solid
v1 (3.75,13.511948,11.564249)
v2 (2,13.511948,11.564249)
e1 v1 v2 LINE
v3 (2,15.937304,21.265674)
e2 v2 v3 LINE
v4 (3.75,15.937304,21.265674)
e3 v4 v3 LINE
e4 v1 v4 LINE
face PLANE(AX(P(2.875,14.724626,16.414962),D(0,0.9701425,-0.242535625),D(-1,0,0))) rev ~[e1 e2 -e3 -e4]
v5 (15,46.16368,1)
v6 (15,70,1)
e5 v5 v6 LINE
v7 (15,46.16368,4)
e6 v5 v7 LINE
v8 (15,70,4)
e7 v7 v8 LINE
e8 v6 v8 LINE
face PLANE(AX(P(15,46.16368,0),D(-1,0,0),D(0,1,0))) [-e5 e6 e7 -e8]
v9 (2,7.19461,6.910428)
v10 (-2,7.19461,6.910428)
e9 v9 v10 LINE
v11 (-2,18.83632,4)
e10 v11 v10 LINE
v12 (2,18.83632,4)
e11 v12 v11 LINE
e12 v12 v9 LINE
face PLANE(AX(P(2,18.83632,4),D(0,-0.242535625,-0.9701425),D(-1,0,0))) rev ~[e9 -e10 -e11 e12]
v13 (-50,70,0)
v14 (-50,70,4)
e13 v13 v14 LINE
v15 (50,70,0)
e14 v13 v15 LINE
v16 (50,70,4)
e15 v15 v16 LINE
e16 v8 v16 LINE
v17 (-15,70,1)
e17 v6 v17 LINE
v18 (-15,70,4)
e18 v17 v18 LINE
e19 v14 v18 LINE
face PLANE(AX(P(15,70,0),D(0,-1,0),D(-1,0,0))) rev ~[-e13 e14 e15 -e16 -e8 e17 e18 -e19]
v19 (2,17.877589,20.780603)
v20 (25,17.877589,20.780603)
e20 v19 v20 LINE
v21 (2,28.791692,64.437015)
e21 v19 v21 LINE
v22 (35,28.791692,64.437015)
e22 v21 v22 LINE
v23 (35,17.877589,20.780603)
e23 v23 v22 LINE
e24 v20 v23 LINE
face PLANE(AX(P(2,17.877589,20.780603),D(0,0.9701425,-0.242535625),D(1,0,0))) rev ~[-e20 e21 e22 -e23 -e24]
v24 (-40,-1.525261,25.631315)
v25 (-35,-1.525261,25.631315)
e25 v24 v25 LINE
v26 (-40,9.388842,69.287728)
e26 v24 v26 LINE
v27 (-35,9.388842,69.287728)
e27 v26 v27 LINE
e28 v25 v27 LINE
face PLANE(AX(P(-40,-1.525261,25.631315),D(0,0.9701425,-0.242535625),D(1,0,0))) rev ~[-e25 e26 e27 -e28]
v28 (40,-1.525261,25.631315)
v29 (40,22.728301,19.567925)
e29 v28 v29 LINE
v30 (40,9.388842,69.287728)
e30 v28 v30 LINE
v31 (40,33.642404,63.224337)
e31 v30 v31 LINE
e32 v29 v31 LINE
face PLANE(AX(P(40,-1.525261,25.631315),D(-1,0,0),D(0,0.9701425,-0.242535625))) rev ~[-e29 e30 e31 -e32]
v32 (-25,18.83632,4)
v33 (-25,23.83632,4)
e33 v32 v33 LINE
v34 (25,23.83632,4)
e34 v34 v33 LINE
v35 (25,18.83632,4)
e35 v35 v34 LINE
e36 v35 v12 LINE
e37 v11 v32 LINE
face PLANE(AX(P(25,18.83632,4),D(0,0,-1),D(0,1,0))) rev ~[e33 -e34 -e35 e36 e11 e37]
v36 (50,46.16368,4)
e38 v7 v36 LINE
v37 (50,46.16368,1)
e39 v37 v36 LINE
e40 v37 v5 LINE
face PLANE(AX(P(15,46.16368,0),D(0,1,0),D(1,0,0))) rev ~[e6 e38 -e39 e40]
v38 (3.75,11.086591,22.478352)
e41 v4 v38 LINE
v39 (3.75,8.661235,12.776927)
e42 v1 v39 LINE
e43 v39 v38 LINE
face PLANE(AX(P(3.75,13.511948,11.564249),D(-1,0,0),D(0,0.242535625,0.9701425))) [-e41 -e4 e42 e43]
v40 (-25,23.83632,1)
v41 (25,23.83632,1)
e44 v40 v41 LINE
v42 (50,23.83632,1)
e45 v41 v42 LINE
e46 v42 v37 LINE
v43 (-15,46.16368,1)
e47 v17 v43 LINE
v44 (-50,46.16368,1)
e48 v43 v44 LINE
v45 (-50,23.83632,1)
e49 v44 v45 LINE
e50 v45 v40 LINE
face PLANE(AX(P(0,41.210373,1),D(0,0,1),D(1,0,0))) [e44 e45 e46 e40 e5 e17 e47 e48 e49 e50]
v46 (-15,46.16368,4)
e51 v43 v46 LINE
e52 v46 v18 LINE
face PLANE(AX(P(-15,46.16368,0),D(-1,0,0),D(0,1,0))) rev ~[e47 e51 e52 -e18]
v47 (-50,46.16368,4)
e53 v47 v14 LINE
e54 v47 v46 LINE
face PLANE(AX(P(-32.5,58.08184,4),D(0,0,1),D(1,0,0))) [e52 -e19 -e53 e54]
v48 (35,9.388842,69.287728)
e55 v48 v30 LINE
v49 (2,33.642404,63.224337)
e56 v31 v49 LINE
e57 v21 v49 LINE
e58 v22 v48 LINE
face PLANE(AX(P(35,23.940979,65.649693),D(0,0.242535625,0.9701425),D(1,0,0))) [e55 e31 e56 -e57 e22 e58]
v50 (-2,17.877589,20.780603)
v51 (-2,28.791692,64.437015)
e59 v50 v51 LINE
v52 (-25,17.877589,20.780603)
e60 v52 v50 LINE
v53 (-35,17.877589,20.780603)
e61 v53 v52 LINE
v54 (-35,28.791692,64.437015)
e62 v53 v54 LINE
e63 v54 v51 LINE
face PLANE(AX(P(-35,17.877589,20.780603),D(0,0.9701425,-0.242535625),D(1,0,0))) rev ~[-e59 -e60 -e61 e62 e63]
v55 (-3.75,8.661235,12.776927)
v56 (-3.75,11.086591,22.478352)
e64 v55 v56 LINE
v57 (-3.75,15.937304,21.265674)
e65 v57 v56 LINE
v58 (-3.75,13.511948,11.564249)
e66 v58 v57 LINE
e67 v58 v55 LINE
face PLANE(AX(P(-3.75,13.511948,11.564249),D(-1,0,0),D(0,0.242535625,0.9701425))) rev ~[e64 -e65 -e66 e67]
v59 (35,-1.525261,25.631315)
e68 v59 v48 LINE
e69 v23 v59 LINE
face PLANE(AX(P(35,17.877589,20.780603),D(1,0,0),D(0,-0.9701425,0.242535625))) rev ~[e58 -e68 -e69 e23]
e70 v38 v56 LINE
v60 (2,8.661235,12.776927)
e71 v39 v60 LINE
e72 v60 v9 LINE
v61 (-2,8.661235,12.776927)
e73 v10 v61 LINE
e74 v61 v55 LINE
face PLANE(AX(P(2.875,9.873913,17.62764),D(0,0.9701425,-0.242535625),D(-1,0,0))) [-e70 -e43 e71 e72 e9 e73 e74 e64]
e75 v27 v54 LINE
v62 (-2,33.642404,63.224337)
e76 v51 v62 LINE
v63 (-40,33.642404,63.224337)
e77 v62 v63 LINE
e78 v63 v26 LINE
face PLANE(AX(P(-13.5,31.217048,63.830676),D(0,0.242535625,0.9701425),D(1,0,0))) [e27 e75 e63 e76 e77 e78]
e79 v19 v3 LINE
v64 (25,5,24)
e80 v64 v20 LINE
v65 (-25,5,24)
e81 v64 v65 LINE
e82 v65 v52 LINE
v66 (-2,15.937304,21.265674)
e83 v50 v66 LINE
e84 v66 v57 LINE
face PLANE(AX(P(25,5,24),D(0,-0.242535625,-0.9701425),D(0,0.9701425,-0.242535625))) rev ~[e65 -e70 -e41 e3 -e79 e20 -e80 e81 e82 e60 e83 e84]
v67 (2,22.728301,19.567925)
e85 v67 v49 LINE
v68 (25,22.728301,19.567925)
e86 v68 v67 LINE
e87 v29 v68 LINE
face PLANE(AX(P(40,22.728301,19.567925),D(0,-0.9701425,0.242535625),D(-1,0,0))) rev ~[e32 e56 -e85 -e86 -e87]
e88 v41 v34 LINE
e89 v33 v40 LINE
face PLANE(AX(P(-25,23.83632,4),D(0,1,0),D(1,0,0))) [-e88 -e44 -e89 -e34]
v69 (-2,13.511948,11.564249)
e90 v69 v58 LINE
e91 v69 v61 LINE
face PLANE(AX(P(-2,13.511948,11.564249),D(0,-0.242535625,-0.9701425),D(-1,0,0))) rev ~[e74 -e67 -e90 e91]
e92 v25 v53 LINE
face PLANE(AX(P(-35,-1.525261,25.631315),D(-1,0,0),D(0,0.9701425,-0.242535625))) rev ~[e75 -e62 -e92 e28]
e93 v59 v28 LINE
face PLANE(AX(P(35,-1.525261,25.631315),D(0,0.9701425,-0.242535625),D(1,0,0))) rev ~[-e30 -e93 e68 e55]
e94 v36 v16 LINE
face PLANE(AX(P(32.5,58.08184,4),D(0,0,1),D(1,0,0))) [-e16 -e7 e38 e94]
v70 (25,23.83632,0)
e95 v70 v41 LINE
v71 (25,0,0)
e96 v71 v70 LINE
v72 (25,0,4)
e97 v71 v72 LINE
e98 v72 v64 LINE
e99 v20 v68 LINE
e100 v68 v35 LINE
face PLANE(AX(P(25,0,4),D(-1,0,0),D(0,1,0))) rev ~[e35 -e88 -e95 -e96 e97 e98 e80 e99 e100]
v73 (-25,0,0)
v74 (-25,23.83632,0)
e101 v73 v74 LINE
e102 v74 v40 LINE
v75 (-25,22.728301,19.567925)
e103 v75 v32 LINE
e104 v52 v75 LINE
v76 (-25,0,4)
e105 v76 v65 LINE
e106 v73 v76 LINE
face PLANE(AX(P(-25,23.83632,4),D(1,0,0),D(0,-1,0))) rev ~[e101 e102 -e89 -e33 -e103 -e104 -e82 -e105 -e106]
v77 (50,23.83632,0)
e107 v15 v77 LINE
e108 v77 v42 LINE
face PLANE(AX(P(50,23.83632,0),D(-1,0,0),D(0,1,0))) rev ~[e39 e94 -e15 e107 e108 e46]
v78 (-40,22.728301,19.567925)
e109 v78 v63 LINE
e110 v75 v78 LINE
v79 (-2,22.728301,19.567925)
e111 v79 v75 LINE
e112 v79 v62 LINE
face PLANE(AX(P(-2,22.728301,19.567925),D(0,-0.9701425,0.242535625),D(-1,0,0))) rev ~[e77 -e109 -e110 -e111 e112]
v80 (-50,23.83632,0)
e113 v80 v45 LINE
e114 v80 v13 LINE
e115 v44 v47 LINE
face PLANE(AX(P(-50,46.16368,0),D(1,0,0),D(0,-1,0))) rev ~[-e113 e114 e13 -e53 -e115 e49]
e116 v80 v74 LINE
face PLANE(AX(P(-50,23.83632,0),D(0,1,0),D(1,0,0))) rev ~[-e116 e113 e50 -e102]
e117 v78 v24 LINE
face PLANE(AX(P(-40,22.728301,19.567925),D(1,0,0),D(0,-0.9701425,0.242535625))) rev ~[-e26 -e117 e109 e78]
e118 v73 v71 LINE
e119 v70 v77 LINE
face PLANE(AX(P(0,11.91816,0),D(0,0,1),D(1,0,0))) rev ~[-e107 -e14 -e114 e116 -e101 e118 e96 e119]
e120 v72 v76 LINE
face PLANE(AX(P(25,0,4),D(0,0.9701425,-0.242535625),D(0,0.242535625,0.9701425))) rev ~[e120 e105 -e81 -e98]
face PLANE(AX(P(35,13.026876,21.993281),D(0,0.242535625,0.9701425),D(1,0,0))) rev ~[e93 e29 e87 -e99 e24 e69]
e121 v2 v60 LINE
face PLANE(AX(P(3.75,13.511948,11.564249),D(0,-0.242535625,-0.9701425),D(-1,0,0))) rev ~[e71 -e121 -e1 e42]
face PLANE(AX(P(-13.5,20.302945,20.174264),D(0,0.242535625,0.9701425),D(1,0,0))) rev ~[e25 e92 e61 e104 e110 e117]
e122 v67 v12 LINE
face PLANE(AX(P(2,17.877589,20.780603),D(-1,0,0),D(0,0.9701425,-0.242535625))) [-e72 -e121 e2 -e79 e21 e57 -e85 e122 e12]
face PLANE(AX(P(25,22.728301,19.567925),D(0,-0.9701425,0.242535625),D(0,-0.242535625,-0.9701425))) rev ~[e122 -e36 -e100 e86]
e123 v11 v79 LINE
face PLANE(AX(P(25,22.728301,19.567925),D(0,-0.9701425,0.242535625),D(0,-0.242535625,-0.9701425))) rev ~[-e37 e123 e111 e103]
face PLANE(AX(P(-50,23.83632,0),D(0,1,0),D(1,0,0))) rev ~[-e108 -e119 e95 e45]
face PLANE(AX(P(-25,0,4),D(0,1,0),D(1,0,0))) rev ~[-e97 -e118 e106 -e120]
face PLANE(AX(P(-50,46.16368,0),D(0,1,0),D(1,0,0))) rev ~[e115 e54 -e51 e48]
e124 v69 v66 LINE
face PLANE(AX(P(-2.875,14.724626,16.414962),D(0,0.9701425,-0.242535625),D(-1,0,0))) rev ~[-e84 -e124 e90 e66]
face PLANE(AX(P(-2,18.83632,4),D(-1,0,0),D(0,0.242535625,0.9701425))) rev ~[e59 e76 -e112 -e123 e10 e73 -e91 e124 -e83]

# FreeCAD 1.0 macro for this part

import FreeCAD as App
import Part
import Sketcher

V = App.Vector


def add_polygon(sketch, points):
    """Adds a closed chain of lines whose ends are joined by coincident constraints."""
    first, n = sketch.GeometryCount, len(points)
    for a, b in zip(points, points[1:] + points[:1]):
        sketch.addGeometry(Part.LineSegment(App.Vector(*a, 0), App.Vector(*b, 0)), False)
    for i in range(n):
        sketch.addConstraint(Sketcher.Constraint("Coincident", first + i, 2, first + (i + 1) % n, 1))

doc = App.newDocument("Part")
params = doc.addObject("Spreadsheet::Sheet", "Params")
for row, (alias, value) in enumerate([
    ("sketch1_width", "100 mm"),
    ("sketch1_width2", "35 mm"),
    ("pad1_length", "1 mm"),
    ("sketch2_width", "50 mm"),
    ("sketch2_width2", "35 mm"),
    ("pad2_length", "4 mm"),
    ("sketch3_width", "50 mm"),
    ("pad3_length", "20 mm"),
    ("sketch4_width", "5 mm"),
    ("sketch4_height", "20 mm"),
    ("pocket1_length", "50 mm"),
    ("sketch5_width", "4 mm"),
    ("pocket2_length", "12 mm"),
    ("sketch6_height", "10 mm"),
    ("sketch6_width", "1.75 mm"),
    ("pocket3_length", "5 mm"),
    ("sketch7_width", "38 mm"),
    ("sketch7_width2", "33 mm"),
    ("sketch7_height", "20 mm"),
    ("pad4_length", "45 mm"),
], start=1):
    params.set(f"A{row}", alias)
    params.set(f"B{row}", "=" + value)
    params.setAlias(f"B{row}", alias)

body = doc.addObject("PartDesign::Body", "Body")

sketch1 = body.newObject("Sketcher::SketchObject", "Sketch")
sketch1.AttachmentSupport = (doc.getObject("XY_Plane"), [""])
sketch1.MapMode = "FlatFace"
add_polygon(sketch1, [(-50, 46.16368), (-50, 23.83632), (50, 23.83632), (50, 46.16368), (15, 46.16368), (15, 70), (-15, 70), (-15, 46.16368)])
sketch1.addConstraint([
    Sketcher.Constraint("Vertical", 0),
    Sketcher.Constraint("Horizontal", 1),
    Sketcher.Constraint("Vertical", 2),
    Sketcher.Constraint("Horizontal", 3),
    Sketcher.Constraint("Vertical", 4),
    Sketcher.Constraint("Horizontal", 5),
    Sketcher.Constraint("Vertical", 6),
    Sketcher.Constraint("Horizontal", 7),
    Sketcher.Constraint("Symmetric", 3, 2, 6, 2, -2),
    Sketcher.Constraint("Equal", 3, 7),
    Sketcher.Constraint("DistanceX", 1, 1, 1, 2, 100.0),
    Sketcher.Constraint("DistanceX", 3, 2, 3, 1, 35.0),
    Sketcher.Constraint("DistanceY", -1, 1, 4, 2, 70.0),
    Sketcher.Constraint("DistanceY", 0, 2, 0, 1, 22.32736),
    Sketcher.Constraint("DistanceY", 4, 1, 4, 2, 23.83632),
])
sketch1.setExpression("Constraints[18]", "Params.sketch1_width")
sketch1.setExpression("Constraints[19]", "Params.sketch1_width2")
pad1 = body.newObject("PartDesign::Pad", "Pad")
pad1.Profile = sketch1
pad1.setExpression("Length", "Params.pad1_length")

sketch2 = body.newObject("Sketcher::SketchObject", "Sketch001")
sketch2.AttachmentSupport = (doc.getObject("XY_Plane"), [""])
sketch2.MapMode = "FlatFace"
add_polygon(sketch2, [(-25, 23.83632), (-25, 0), (25, 0), (25, 23.83632)])
add_polygon(sketch2, [(15, 70), (15, 46.16368), (50, 46.16368), (50, 70)])
add_polygon(sketch2, [(-50, 70), (-50, 46.16368), (-15, 46.16368), (-15, 70)])
sketch2.addConstraint([
    Sketcher.Constraint("Vertical", 0),
    Sketcher.Constraint("Horizontal", 1),
    Sketcher.Constraint("Vertical", 2),
    Sketcher.Constraint("Horizontal", 3),
    Sketcher.Constraint("Vertical", 4),
    Sketcher.Constraint("Horizontal", 5),
    Sketcher.Constraint("Vertical", 6),
    Sketcher.Constraint("Horizontal", 7),
    Sketcher.Constraint("Vertical", 8),
    Sketcher.Constraint("Horizontal", 9),
    Sketcher.Constraint("Vertical", 10),
    Sketcher.Constraint("Horizontal", 11),
    Sketcher.Constraint("Symmetric", 0, 2, 1, 2, -1, 1),
    Sketcher.Constraint("Symmetric", 5, 2, 8, 2, -2),
    Sketcher.Constraint("Symmetric", 7, 2, 10, 2, -2),
    Sketcher.Constraint("Equal", 2, 4),
    Sketcher.Constraint("DistanceX", 1, 1, 1, 2, 50.0),
    Sketcher.Constraint("DistanceX", 5, 1, 5, 2, 35.0),
    Sketcher.Constraint("DistanceX", -1, 1, 4, 2, 15.0),
    Sketcher.Constraint("DistanceY", -1, 1, 6, 2, 70.0),
    Sketcher.Constraint("DistanceY", 0, 2, 0, 1, 23.83632),
])
sketch2.setExpression("Constraints[28]", "Params.sketch2_width")
sketch2.setExpression("Constraints[29]", "Params.sketch2_width2")
pad2 = body.newObject("PartDesign::Pad", "Pad001")
pad2.Profile = sketch2
pad2.setExpression("Length", "Params.pad2_length")

sketch3 = body.newObject("Sketcher::SketchObject", "Sketch002")
sketch3.AttachmentSupport = (doc.getObject("XY_Plane"), [""])
sketch3.MapMode = "FlatFace"
sketch3.AttachmentOffset = App.Placement(V(0, 0, 4), App.Rotation())
add_polygon(sketch3, [(-25, 23.83632), (-25, 0), (25, 0), (25, 23.83632)])
sketch3.addConstraint([
    Sketcher.Constraint("Vertical", 0),
    Sketcher.Constraint("Horizontal", 1),
    Sketcher.Constraint("Vertical", 2),
    Sketcher.Constraint("Horizontal", 3),
    Sketcher.Constraint("Symmetric", 0, 2, 1, 2, -1, 1),
    Sketcher.Constraint("DistanceX", 1, 1, 1, 2, 50.0),
    Sketcher.Constraint("DistanceY", 0, 2, 0, 1, 23.83632),
])
sketch3.setExpression("Constraints[9]", "Params.sketch3_width")
pad3 = body.newObject("PartDesign::Pad", "Pad002")
pad3.Profile = sketch3
pad3.setExpression("Length", "Params.pad3_length")

sketch4 = body.newObject("Sketcher::SketchObject", "Sketch003")
sketch4.AttachmentSupport = (doc.getObject("YZ_Plane"), [""])
sketch4.MapMode = "FlatFace"
sketch4.AttachmentOffset = App.Placement(V(0, 0, 25), App.Rotation())
add_polygon(sketch4, [(0, 24), (0, 4), (5, 24)])
add_polygon(sketch4, [(22.728301, 19.567925), (18.83632, 4), (23.83632, 4), (23.83632, 24), (5, 24)])
sketch4.addConstraint([
    Sketcher.Constraint("Vertical", 0),
    Sketcher.Constraint("Horizontal", 2),
    Sketcher.Constraint("Horizontal", 4),
    Sketcher.Constraint("Vertical", 5),
    Sketcher.Constraint("Horizontal", 6),
    Sketcher.Constraint("Coincident", 6, 2, 1, 2),
    Sketcher.Constraint("PointOnObject", 0, 2, -2),
    Sketcher.Constraint("Parallel", 1, 3),
    Sketcher.Constraint("Perpendicular", 3, 7),
    Sketcher.Constraint("Horizontal", 0, 2, 3, 2),
    Sketcher.Constraint("Equal", 2, 4),
    Sketcher.Constraint("DistanceX", 2, 2, 2, 1, 5.0),
    Sketcher.Constraint("DistanceY", 0, 2, 0, 1, 20.0),
    Sketcher.Constraint("DistanceY", -1, 1, 0, 2, 4.0),
    Sketcher.Constraint("DistanceX", 6, 2, 6, 1, 18.83632),
])
sketch4.setExpression("Constraints[19]", "Params.sketch4_width")
sketch4.setExpression("Constraints[20]", "Params.sketch4_height")
pocket1 = body.newObject("PartDesign::Pocket", "Pocket")
pocket1.Profile = sketch4
pocket1.setExpression("Length", "Params.pocket1_length")

sketch5 = body.newObject("Sketcher::SketchObject", "Sketch004")
sketch5.Placement = App.Placement(V(0, 16.787125, -4.196781), App.Rotation(V(-1, 0, 0), V(0, 0.242535625, 0.9701425), V(0, 0.9701425, -0.242535625), "ZXY"))
add_polygon(sketch5, [(-2, 24.496098), (-2, 8.449049), (2, 8.449049), (2, 24.496098)])
sketch5.addConstraint([
    Sketcher.Constraint("Vertical", 0),
    Sketcher.Constraint("Horizontal", 1),
    Sketcher.Constraint("Vertical", 2),
    Sketcher.Constraint("Horizontal", 3),
    Sketcher.Constraint("DistanceX", 1, 1, 1, 2, 4.0),
    Sketcher.Constraint("DistanceX", 0, 2, -1, 1, 2.0),
    Sketcher.Constraint("DistanceY", 0, 2, 0, 1, 16.047049),
    Sketcher.Constraint("DistanceY", -1, 1, 2, 2, 24.496098),
])
sketch5.setExpression("Constraints[8]", "Params.sketch5_width")
pocket2 = body.newObject("PartDesign::Pocket", "Pocket001")
pocket2.Profile = sketch5
pocket2.setExpression("Length", "Params.pocket2_length")

sketch6 = body.newObject("Sketcher::SketchObject", "Sketch005")
sketch6.Placement = App.Placement(V(0, 9.996127, -2.499032), App.Rotation(V(-1, 0, 0), V(0, 0.242535625, 0.9701425), V(0, 0.9701425, -0.242535625), "ZXY"))
add_polygon(sketch6, [(2, 24.496098), (2, 14.496098), (3.75, 14.496098), (3.75, 24.496098)])
add_polygon(sketch6, [(-3.75, 24.496098), (-3.75, 14.496098), (-2, 14.496098), (-2, 24.496098)])
sketch6.addConstraint([
    Sketcher.Constraint("Vertical", 0),
    Sketcher.Constraint("Horizontal", 1),
    Sketcher.Constraint("Vertical", 2),
    Sketcher.Constraint("Horizontal", 3),
    Sketcher.Constraint("Vertical", 4),
    Sketcher.Constraint("Horizontal", 5),
    Sketcher.Constraint("Vertical", 6),
    Sketcher.Constraint("Horizontal", 7),
    Sketcher.Constraint("Symmetric", 1, 2, 4, 2, -2),
    Sketcher.Constraint("Symmetric", 3, 2, 6, 2, -2),
    Sketcher.Constraint("DistanceY", 0, 2, 0, 1, 10.0),
    Sketcher.Constraint("DistanceX", -1, 1, 0, 2, 2.0),
    Sketcher.Constraint("DistanceX", 1, 1, 1, 2, 1.75),
    Sketcher.Constraint("DistanceY", -1, 1, 0, 2, 14.496098),
])
sketch6.setExpression("Constraints[18]", "Params.sketch6_height")
sketch6.setExpression("Constraints[20]", "Params.sketch6_width")
pocket3 = body.newObject("PartDesign::Pocket", "Pocket002")
pocket3.Profile = sketch6
pocket3.setExpression("Length", "Params.pocket3_length")

sketch7 = body.newObject("Sketcher::SketchObject", "Sketch006")
sketch7.Placement = App.Placement(V(0, 5.941176, 23.764706), App.Rotation(V(1, 0, 0), V(0, 0.9701425, -0.242535625), V(0, 0.242535625, 0.9701425), "ZXY"))
add_polygon(sketch7, [(40, 17.303772), (2, 17.303772), (2, 12.303772), (35, 12.303772), (35, -7.696228), (40, -7.696228)])
add_polygon(sketch7, [(-2, 12.303772), (-2, 17.303772), (-40, 17.303772), (-40, -7.696228), (-35, -7.696228), (-35, 12.303772)])
sketch7.addConstraint([
    Sketcher.Constraint("Horizontal", 0),
    Sketcher.Constraint("Vertical", 1),
    Sketcher.Constraint("Horizontal", 2),
    Sketcher.Constraint("Vertical", 3),
    Sketcher.Constraint("Horizontal", 4),
    Sketcher.Constraint("Vertical", 5),
    Sketcher.Constraint("Vertical", 6),
    Sketcher.Constraint("Horizontal", 7),
    Sketcher.Constraint("Vertical", 8),
    Sketcher.Constraint("Horizontal", 9),
    Sketcher.Constraint("Vertical", 10),
    Sketcher.Constraint("Horizontal", 11),
    Sketcher.Constraint("Symmetric", 0, 2, 6, 2, -2),
    Sketcher.Constraint("Symmetric", 4, 2, 8, 2, -2),
    Sketcher.Constraint("Symmetric", 2, 2, 10, 2, -2),
    Sketcher.Constraint("Equal", 9, 1),
    Sketcher.Constraint("DistanceX", 0, 2, 0, 1, 38.0),
    Sketcher.Constraint("DistanceX", 2, 1, 2, 2, 33.0),
    Sketcher.Constraint("DistanceY", 3, 2, 3, 1, 20.0),
    Sketcher.Constraint("DistanceX", -1, 1, 0, 2, 2.0),
    Sketcher.Constraint("DistanceY", -1, 1, 0, 2, 17.303772),
])
sketch7.setExpression("Constraints[28]", "Params.sketch7_width")
sketch7.setExpression("Constraints[29]", "Params.sketch7_width2")
sketch7.setExpression("Constraints[30]", "Params.sketch7_height")
pad4 = body.newObject("PartDesign::Pad", "Pad003")
pad4.Profile = sketch7
pad4.setExpression("Length", "Params.pad4_length")

doc.recompute()
